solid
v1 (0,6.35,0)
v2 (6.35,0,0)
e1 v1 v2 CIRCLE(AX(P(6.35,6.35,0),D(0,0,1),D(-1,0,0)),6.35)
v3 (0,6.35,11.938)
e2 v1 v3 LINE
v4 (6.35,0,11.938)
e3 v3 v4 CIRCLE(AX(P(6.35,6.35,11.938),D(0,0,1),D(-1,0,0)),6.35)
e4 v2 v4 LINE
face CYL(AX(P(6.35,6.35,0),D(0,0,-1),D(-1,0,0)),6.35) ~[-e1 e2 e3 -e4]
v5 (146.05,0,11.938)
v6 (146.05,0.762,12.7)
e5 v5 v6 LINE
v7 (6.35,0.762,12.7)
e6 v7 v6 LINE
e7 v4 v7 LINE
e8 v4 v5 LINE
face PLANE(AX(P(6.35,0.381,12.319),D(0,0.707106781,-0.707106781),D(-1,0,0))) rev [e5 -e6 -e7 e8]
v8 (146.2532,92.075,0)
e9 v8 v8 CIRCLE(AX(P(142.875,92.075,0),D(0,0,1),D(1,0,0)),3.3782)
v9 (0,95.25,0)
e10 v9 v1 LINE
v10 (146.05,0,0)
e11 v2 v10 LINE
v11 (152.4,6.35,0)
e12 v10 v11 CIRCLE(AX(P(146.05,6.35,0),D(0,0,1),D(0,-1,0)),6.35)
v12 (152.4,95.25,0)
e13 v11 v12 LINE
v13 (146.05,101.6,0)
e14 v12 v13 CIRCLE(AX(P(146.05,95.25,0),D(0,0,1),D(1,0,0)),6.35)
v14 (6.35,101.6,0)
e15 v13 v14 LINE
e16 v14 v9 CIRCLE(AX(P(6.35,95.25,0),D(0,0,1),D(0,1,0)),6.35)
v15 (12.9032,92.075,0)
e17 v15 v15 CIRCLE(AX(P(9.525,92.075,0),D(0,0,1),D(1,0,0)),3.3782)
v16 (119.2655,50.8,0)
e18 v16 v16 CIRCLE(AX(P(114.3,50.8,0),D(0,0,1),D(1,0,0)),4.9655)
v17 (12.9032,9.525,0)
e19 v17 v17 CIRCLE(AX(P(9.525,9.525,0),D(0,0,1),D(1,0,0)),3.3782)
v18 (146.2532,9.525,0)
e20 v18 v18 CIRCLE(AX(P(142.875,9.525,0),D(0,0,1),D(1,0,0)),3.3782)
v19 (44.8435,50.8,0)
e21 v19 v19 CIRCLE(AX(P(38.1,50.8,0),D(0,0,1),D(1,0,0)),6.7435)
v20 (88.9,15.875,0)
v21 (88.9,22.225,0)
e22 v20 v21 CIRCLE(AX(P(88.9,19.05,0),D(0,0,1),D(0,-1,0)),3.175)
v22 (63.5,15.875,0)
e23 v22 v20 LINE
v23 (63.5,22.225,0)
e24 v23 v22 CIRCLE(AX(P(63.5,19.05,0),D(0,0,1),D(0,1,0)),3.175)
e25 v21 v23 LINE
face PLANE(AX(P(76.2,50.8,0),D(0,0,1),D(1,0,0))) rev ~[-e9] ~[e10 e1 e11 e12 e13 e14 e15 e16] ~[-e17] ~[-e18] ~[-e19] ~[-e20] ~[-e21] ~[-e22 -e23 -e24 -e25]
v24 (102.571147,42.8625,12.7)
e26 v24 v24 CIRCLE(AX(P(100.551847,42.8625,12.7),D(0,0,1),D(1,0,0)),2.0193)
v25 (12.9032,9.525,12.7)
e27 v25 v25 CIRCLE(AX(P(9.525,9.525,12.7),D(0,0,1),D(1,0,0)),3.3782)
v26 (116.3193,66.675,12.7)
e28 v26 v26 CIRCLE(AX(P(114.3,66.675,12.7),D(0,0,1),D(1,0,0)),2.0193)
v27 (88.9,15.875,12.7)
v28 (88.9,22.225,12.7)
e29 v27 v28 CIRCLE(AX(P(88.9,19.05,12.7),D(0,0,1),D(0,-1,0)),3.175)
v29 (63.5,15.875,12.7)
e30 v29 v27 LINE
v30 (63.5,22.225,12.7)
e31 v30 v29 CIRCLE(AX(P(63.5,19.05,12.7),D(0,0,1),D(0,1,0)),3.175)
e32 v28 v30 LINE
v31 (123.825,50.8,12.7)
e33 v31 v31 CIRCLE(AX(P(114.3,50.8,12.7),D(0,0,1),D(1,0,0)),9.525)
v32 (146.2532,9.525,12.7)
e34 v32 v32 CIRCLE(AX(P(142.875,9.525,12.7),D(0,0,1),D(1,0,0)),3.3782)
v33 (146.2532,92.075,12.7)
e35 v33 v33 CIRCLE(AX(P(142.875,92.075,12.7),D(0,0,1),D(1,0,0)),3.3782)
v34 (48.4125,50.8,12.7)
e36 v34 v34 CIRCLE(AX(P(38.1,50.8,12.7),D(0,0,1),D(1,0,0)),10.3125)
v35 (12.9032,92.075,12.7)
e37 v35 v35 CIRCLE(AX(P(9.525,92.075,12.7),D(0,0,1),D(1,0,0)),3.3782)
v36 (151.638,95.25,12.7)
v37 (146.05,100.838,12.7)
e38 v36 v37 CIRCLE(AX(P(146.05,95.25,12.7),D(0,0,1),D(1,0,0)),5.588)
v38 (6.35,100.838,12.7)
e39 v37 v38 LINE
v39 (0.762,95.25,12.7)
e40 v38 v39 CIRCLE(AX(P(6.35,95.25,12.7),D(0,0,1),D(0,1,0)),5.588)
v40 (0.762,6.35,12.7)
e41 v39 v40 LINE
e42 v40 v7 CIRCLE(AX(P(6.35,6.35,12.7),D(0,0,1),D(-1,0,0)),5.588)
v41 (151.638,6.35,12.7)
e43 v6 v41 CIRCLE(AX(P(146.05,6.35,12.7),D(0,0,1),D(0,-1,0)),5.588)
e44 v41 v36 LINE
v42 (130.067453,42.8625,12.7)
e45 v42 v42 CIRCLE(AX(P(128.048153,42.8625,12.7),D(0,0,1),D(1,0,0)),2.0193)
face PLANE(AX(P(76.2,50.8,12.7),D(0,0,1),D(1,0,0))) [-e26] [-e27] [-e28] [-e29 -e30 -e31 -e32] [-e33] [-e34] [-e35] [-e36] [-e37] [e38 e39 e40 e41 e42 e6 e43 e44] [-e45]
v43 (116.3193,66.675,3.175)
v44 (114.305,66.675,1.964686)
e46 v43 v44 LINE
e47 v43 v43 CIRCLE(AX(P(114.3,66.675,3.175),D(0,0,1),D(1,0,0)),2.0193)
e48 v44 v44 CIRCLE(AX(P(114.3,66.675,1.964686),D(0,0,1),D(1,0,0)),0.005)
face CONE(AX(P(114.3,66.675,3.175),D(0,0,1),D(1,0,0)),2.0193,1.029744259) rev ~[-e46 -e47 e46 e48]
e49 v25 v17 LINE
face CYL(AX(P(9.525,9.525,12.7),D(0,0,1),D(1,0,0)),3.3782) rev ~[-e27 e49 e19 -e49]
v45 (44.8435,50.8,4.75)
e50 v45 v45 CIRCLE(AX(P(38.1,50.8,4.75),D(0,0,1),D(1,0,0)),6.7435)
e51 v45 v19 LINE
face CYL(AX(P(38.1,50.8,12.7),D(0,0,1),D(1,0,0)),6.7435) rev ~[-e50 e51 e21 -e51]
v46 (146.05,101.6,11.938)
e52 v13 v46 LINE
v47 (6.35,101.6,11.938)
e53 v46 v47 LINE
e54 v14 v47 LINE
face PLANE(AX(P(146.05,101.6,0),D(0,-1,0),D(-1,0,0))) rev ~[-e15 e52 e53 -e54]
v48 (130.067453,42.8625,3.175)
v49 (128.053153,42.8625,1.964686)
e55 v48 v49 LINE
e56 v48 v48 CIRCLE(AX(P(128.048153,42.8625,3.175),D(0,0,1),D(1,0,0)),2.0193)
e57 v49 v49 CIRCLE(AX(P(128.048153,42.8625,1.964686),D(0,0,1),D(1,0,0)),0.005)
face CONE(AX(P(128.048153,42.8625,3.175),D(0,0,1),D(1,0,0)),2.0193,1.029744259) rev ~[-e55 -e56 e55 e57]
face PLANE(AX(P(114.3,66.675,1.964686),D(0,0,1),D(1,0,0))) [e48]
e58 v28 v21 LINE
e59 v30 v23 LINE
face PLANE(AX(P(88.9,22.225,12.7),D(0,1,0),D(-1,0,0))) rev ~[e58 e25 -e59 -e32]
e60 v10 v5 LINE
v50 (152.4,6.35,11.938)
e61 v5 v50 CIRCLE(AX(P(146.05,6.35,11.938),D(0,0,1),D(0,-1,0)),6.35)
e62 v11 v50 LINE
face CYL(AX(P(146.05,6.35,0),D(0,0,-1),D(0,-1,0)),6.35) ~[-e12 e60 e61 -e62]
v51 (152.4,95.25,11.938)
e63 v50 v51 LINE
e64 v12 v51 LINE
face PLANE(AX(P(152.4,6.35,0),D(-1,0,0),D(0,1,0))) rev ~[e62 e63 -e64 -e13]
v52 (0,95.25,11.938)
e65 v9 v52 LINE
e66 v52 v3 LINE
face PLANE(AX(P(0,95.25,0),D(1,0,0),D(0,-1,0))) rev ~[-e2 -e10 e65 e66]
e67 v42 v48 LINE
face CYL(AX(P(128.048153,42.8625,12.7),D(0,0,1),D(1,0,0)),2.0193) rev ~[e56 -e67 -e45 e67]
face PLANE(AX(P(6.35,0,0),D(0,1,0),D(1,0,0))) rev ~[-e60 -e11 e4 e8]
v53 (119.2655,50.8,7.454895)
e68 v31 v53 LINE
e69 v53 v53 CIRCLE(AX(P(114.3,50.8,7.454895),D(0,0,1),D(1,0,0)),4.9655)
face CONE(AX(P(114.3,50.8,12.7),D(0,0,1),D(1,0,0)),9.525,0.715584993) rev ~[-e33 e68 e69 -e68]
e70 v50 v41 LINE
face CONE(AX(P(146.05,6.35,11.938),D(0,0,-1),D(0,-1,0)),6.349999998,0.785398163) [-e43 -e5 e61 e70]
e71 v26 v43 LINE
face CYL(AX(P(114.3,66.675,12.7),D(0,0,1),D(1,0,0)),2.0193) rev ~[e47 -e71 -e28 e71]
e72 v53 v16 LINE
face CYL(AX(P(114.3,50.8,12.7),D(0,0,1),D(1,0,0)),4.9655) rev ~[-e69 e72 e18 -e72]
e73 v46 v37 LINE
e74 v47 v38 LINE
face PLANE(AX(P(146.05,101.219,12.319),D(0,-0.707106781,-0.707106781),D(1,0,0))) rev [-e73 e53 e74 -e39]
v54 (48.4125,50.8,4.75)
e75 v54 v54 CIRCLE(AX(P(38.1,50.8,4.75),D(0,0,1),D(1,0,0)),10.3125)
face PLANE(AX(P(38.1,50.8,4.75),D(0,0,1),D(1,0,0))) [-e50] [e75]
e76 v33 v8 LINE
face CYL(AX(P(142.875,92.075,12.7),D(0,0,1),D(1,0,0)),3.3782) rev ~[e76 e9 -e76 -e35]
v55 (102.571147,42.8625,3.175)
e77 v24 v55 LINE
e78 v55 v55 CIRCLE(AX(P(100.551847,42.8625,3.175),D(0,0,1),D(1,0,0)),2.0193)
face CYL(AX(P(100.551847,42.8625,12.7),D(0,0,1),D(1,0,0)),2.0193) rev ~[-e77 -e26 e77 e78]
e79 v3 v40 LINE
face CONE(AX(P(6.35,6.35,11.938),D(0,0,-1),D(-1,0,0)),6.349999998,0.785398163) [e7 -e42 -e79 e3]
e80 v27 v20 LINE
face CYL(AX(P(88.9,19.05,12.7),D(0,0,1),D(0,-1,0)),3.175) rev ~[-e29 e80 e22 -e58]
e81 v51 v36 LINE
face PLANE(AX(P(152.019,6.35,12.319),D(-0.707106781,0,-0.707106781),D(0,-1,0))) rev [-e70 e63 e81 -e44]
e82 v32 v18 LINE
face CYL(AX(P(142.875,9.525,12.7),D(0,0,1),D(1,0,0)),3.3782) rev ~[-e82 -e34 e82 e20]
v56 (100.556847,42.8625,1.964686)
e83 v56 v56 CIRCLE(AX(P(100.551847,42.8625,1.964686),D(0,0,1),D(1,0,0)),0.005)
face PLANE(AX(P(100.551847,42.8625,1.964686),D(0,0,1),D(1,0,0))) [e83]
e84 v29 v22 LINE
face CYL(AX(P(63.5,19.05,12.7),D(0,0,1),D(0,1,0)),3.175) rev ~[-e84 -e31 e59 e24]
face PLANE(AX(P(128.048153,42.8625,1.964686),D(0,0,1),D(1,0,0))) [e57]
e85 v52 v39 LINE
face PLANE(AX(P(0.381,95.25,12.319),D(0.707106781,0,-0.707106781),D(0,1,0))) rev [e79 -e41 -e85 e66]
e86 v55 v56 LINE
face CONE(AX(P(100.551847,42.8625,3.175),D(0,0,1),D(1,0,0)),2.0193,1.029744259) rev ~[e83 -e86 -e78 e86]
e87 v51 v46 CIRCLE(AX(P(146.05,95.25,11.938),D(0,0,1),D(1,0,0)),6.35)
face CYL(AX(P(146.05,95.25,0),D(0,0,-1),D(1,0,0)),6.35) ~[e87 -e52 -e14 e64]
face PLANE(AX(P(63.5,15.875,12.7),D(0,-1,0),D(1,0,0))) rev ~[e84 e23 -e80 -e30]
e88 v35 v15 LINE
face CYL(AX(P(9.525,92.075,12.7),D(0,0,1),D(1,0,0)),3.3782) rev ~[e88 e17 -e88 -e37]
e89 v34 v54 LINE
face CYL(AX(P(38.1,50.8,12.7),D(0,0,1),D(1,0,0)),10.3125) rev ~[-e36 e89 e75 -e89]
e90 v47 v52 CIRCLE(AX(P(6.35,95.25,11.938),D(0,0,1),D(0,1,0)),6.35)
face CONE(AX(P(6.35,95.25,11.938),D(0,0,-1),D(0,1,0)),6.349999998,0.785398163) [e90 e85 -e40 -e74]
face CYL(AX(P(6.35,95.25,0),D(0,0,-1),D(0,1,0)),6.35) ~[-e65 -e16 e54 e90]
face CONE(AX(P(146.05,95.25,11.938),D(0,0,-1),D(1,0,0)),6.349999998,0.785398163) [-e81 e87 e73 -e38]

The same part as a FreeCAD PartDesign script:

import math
import FreeCAD as App
import Part
import Sketcher
from FreeCAD import Vector
Q = App.Units.Quantity


def edges_at(feature, points):
    """Names of the edges that pass closest to the given points."""
    edges = feature.Shape.Edges
    near = lambda p: min(range(len(edges)), key=lambda i: edges[i].distToShape(Part.Vertex(*p))[0])
    return sorted({f"Edge{near(p) + 1}" for p in points})


def faces_at(feature, points):
    """Names of the faces that lie closest to the given points."""
    faces = feature.Shape.Faces
    near = lambda p: min(range(len(faces)), key=lambda i: faces[i].distToShape(Part.Vertex(*p))[0])
    return sorted({f"Face{near(p) + 1}" for p in points})

doc = App.newDocument("Part")
body = doc.addObject("PartDesign::Body", "Body")

sketch1 = body.newObject("Sketcher::SketchObject", "Sketch")
sketch1.AttachmentSupport = (doc.getObject("XY_Plane"), [""])
sketch1.MapMode = "FlatFace"
sketch1.addGeometry(Part.LineSegment(Vector(6, 0, 0), Vector(146, 0, 0)), False)
sketch1.addGeometry(Part.ArcOfCircle(Part.Circle(Vector(146, 6, 0), Vector(0, 0, 1), 6), math.radians(-90), math.radians(0)), False)
sketch1.addGeometry(Part.LineSegment(Vector(152, 6, 0), Vector(152, 95, 0)), False)
sketch1.addGeometry(Part.ArcOfCircle(Part.Circle(Vector(146, 95, 0), Vector(0, 0, 1), 6), math.radians(0), math.radians(90)), False)
sketch1.addGeometry(Part.LineSegment(Vector(146, 102, 0), Vector(6, 102, 0)), False)
sketch1.addGeometry(Part.ArcOfCircle(Part.Circle(Vector(6, 95, 0), Vector(0, 0, 1), 6), math.radians(90), math.radians(180)), False)
sketch1.addGeometry(Part.LineSegment(Vector(0, 95, 0), Vector(0, 6, 0)), False)
sketch1.addGeometry(Part.ArcOfCircle(Part.Circle(Vector(6, 6, 0), Vector(0, 0, 1), 6), math.radians(180), math.radians(270)), False)
sketch1.addConstraint(Sketcher.Constraint("Tangent", 0, 2, 1, 1))
sketch1.addConstraint(Sketcher.Constraint("Tangent", 1, 2, 2, 1))
sketch1.addConstraint(Sketcher.Constraint("Tangent", 2, 2, 3, 1))
sketch1.addConstraint(Sketcher.Constraint("Tangent", 3, 2, 4, 1))
sketch1.addConstraint(Sketcher.Constraint("Tangent", 4, 2, 5, 1))
sketch1.addConstraint(Sketcher.Constraint("Tangent", 5, 2, 6, 1))
sketch1.addConstraint(Sketcher.Constraint("Tangent", 6, 2, 7, 1))
sketch1.addConstraint(Sketcher.Constraint("Tangent", 7, 2, 0, 1))
sketch1.addConstraint(Sketcher.Constraint("Horizontal", 0))
sketch1.addConstraint(Sketcher.Constraint("Vertical", 2))
sketch1.addConstraint(Sketcher.Constraint("Horizontal", 4))
sketch1.addConstraint(Sketcher.Constraint("Vertical", 6))
sketch1.addConstraint(Sketcher.Constraint("Equal", 1, 3))
sketch1.addConstraint(Sketcher.Constraint("Equal", 3, 5))
sketch1.addConstraint(Sketcher.Constraint("Equal", 5, 7))
sketch1.addConstraint(Sketcher.Constraint("PointOnObject", 0, 2, -1))
sketch1.addConstraint(Sketcher.Constraint("PointOnObject", 5, 2, -2))
sketch1.addConstraint(Sketcher.Constraint("Radius", 1, Q("0.25 in")))
sketch1.addConstraint(Sketcher.Constraint("DistanceX", 0, 1, 0, 2, Q("5.5 in")))
sketch1.addConstraint(Sketcher.Constraint("DistanceY", 2, 1, 2, 2, Q("3.5 in")))
pad1 = body.newObject("PartDesign::Pad", "Pad")
pad1.Profile = sketch1
pad1.Length = Q("0.5 in")

sketch2 = body.newObject("Sketcher::SketchObject", "Sketch001")
sketch2.AttachmentSupport = (doc.getObject("XY_Plane"), [""])
sketch2.MapMode = "FlatFace"
sketch2.AttachmentOffset = App.Placement(Vector(0, 0, 0.5 * 25.4), App.Rotation())
sketch2.addGeometry(Part.Circle(Vector(9.5, 9.5, 0), Vector(0, 0, 1), 3.4), False)
sketch2.addGeometry(Part.Circle(Vector(142.9, 9.5, 0), Vector(0, 0, 1), 3.4), False)
sketch2.addGeometry(Part.Circle(Vector(9.5, 92.1, 0), Vector(0, 0, 1), 3.4), False)
sketch2.addGeometry(Part.Circle(Vector(142.9, 92.1, 0), Vector(0, 0, 1), 3.4), False)
sketch2.addConstraint(Sketcher.Constraint("Equal", 0, 1))
sketch2.addConstraint(Sketcher.Constraint("Equal", 1, 2))
sketch2.addConstraint(Sketcher.Constraint("Equal", 2, 3))
sketch2.addConstraint(Sketcher.Constraint("Horizontal", 0, 3, 1, 3))
sketch2.addConstraint(Sketcher.Constraint("Horizontal", 2, 3, 3, 3))
sketch2.addConstraint(Sketcher.Constraint("Vertical", 0, 3, 2, 3))
sketch2.addConstraint(Sketcher.Constraint("Vertical", 1, 3, 3, 3))
sketch2.addConstraint(Sketcher.Constraint("Diameter", 0, Q("0.266 in")))
sketch2.addConstraint(Sketcher.Constraint("DistanceX", 0, 3, 1, 3, Q("5.25 in")))
sketch2.addConstraint(Sketcher.Constraint("DistanceY", 0, 3, 2, 3, Q("3.25 in")))
sketch2.addConstraint(Sketcher.Constraint("DistanceX", -1, 1, 0, 3, Q("0.375 in")))
sketch2.addConstraint(Sketcher.Constraint("DistanceY", -1, 1, 0, 3, Q("0.375 in")))
pocket1 = body.newObject("PartDesign::Pocket", "Pocket")
pocket1.Profile = sketch2
pocket1.Type = "ThroughAll"

sketch3 = body.newObject("Sketcher::SketchObject", "Sketch002")
sketch3.AttachmentSupport = (doc.getObject("XY_Plane"), [""])
sketch3.MapMode = "FlatFace"
sketch3.AttachmentOffset = App.Placement(Vector(0, 0, 0.5 * 25.4), App.Rotation())
sketch3.addGeometry(Part.Circle(Vector(38, 51, 0), Vector(0, 0, 1), 10), False)
sketch3.addConstraint(Sketcher.Constraint("DistanceY", -1, 1, 0, 3, Q("2 in")))
sketch3.addConstraint(Sketcher.Constraint("DistanceX", -1, 1, 0, 3, Q("1.5 in")))
sketch3.addConstraint(Sketcher.Constraint("Diameter", 0, Q("20.625 mm")))
pocket2 = body.newObject("PartDesign::Pocket", "Pocket001")
pocket2.Profile = sketch3
pocket2.Length = 7.95

sketch4 = body.newObject("Sketcher::SketchObject", "Sketch003")
sketch4.AttachmentSupport = (doc.getObject("XY_Plane"), [""])
sketch4.MapMode = "FlatFace"
sketch4.AttachmentOffset = App.Placement(Vector(0, 0, 0.5 * 25.4), App.Rotation())
sketch4.addGeometry(Part.Circle(Vector(38, 51, 0), Vector(0, 0, 1), 7), False)
sketch4.addConstraint(Sketcher.Constraint("DistanceY", -1, 1, 0, 3, Q("2 in")))
sketch4.addConstraint(Sketcher.Constraint("DistanceX", -1, 1, 0, 3, Q("1.5 in")))
sketch4.addConstraint(Sketcher.Constraint("Diameter", 0, Q("13.487 mm")))
pocket3 = body.newObject("PartDesign::Pocket", "Pocket002")
pocket3.Profile = sketch4
pocket3.Type = "ThroughAll"
body2 = doc.addObject("PartDesign::Body", "Body001")

sketch5 = body2.newObject("Sketcher::SketchObject", "Sketch004")
sketch5.AttachmentSupport = (doc.getObject("XY_Plane001"), [""])
sketch5.MapMode = "FlatFace"
sketch5.AttachmentOffset = App.Placement(Vector(0, 0, 0.5 * 25.4), App.Rotation())
sketch5.addGeometry(Part.Circle(Vector(114, 51, 0), Vector(0, 0, 1), 10), False)
sketch5.addConstraint(Sketcher.Constraint("Diameter", 0, Q("0.75 in")))
sketch5.addConstraint(Sketcher.Constraint("DistanceY", -1, 1, 0, 3, Q("2 in")))
sketch5.addConstraint(Sketcher.Constraint("DistanceX", -1, 1, 0, 3, Q("4.5 in")))
pad2 = body2.newObject("PartDesign::Pad", "Pad001")
pad2.Profile = sketch5
pad2.Length = Q("0.2065002 in")
pad2.Reversed = True
doc.recompute()

datumplane = body2.newObject("PartDesign::Plane", "DatumPlane")
datumplane.AttachmentSupport = (doc.getObject("XY_Plane001"), [""])
datumplane.MapMode = "FlatFace"
datumplane.AttachmentOffset = App.Placement(Vector(0, 0, 0.5 * 25.4), App.Rotation())
draft = body2.newObject("PartDesign::Draft", "Draft")
draft.Base = (pad2, faces_at(pad2, [(104.775, 50.8, 10.077)]))
draft.NeutralPlane = (datumplane, [""])
draft.Angle = 41
draft.Reversed = True
doc.recompute()

boolean = body.newObject("PartDesign::Boolean", "Boolean")
boolean.Type = "Cut"
boolean.addObjects([body2])

sketch6 = body.newObject("Sketcher::SketchObject", "Sketch005")
sketch6.AttachmentSupport = (doc.getObject("XY_Plane"), [""])
sketch6.MapMode = "FlatFace"
sketch6.AttachmentOffset = App.Placement(Vector(0, 0, 0.5 * 25.4), App.Rotation())
sketch6.addGeometry(Part.Circle(Vector(114.3, 50.8, 0), Vector(0, 0, 1), 5), False)
sketch6.addConstraint(Sketcher.Constraint("DistanceY", -1, 1, 0, 3, Q("2 in")))
sketch6.addConstraint(Sketcher.Constraint("DistanceX", -1, 1, 0, 3, Q("4.5 in")))
sketch6.addConstraint(Sketcher.Constraint("Diameter", 0, Q("9.931 mm")))
pocket4 = body.newObject("PartDesign::Pocket", "Pocket003")
pocket4.Profile = sketch6
pocket4.Type = "ThroughAll"

sketch7 = body.newObject("Sketcher::SketchObject", "Sketch006")
sketch7.AttachmentSupport = (doc.getObject("XY_Plane"), [""])
sketch7.MapMode = "FlatFace"
sketch7.AttachmentOffset = App.Placement(Vector(0, 0, 0.5 * 25.4), App.Rotation())
sketch7.addGeometry(Part.Circle(Vector(114.3, 66.7, 0), Vector(0, 0, 1), 2), False)
sketch7.addGeometry(Part.Circle(Vector(100.6, 42.9, 0), Vector(0, 0, 1), 2), False)
sketch7.addGeometry(Part.Circle(Vector(128, 42.9, 0), Vector(0, 0, 1), 2), False)
sketch7.addConstraint(Sketcher.Constraint("Equal", 0, 1))
sketch7.addConstraint(Sketcher.Constraint("Equal", 1, 2))
sketch7.addConstraint(Sketcher.Constraint("Horizontal", 1, 3, 2, 3))
sketch7.addConstraint(Sketcher.Constraint("Diameter", 0, Q("0.159 in")))
sketch7.addConstraint(Sketcher.Constraint("DistanceX", -1, 1, 0, 3, Q("4.5 in")))
sketch7.addConstraint(Sketcher.Constraint("DistanceY", -1, 1, 0, 3, Q("2.625 in")))
sketch7.addConstraint(Sketcher.Constraint("DistanceY", -1, 1, 1, 3, Q("1.6875 in")))
sketch7.addConstraint(Sketcher.Constraint("DistanceX", -1, 1, 1, 3, Q("100.551847 mm")))
sketch7.addConstraint(Sketcher.Constraint("DistanceX", -1, 1, 2, 3, Q("128.048153 mm")))
pocket5 = body.newObject("PartDesign::Pocket", "Pocket004")
pocket5.Profile = sketch7
pocket5.Length = Q("0.375 in")
body3 = doc.addObject("PartDesign::Body", "Body002")

sketch8 = body3.newObject("Sketcher::SketchObject", "Sketch007")
sketch8.AttachmentSupport = (doc.getObject("XY_Plane002"), [""])
sketch8.MapMode = "FlatFace"
sketch8.AttachmentOffset = App.Placement(Vector(0, 0, 0.125 * 25.4), App.Rotation())
sketch8.addGeometry(Part.Circle(Vector(114.3, 66.7, 0), Vector(0, 0, 1), 2), False)
sketch8.addConstraint(Sketcher.Constraint("Diameter", 0, Q("0.159 in")))
sketch8.addConstraint(Sketcher.Constraint("DistanceX", -1, 1, 0, 3, Q("4.5 in")))
sketch8.addConstraint(Sketcher.Constraint("DistanceY", -1, 1, 0, 3, Q("2.625 in")))
pad3 = body3.newObject("PartDesign::Pad", "Pad002")
pad3.Profile = sketch8
pad3.Length = 1.210314
pad3.Reversed = True
doc.recompute()

datumplane2 = body3.newObject("PartDesign::Plane", "DatumPlane001")
datumplane2.AttachmentSupport = (doc.getObject("XY_Plane002"), [""])
datumplane2.MapMode = "FlatFace"
datumplane2.AttachmentOffset = App.Placement(Vector(0, 0, 0.125 * 25.4), App.Rotation())
draft2 = body3.newObject("PartDesign::Draft", "Draft001")
draft2.Base = (pad3, faces_at(pad3, [(112.281, 66.675, 2.57)]))
draft2.NeutralPlane = (datumplane2, [""])
draft2.Angle = 59
draft2.Reversed = True
doc.recompute()

boolean2 = body.newObject("PartDesign::Boolean", "Boolean001")
boolean2.Type = "Cut"
boolean2.addObjects([body3])
body4 = doc.addObject("PartDesign::Body", "Body003")

sketch9 = body4.newObject("Sketcher::SketchObject", "Sketch008")
sketch9.AttachmentSupport = (doc.getObject("XY_Plane003"), [""])
sketch9.MapMode = "FlatFace"
sketch9.AttachmentOffset = App.Placement(Vector(0, 0, 0.125 * 25.4), App.Rotation())
sketch9.addGeometry(Part.Circle(Vector(100.6, 42.9, 0), Vector(0, 0, 1), 2), False)
sketch9.addConstraint(Sketcher.Constraint("Diameter", 0, Q("0.159 in")))
sketch9.addConstraint(Sketcher.Constraint("DistanceY", -1, 1, 0, 3, Q("1.6875 in")))
sketch9.addConstraint(Sketcher.Constraint("DistanceX", -1, 1, 0, 3, Q("100.551847 mm")))
pad4 = body4.newObject("PartDesign::Pad", "Pad003")
pad4.Profile = sketch9
pad4.Length = 1.210314
pad4.Reversed = True
doc.recompute()

datumplane3 = body4.newObject("PartDesign::Plane", "DatumPlane002")
datumplane3.AttachmentSupport = (doc.getObject("XY_Plane003"), [""])
datumplane3.MapMode = "FlatFace"
datumplane3.AttachmentOffset = App.Placement(Vector(0, 0, 0.125 * 25.4), App.Rotation())
draft3 = body4.newObject("PartDesign::Draft", "Draft002")
draft3.Base = (pad4, faces_at(pad4, [(98.533, 42.862, 2.57)]))
draft3.NeutralPlane = (datumplane3, [""])
draft3.Angle = 59
draft3.Reversed = True
doc.recompute()

boolean3 = body.newObject("PartDesign::Boolean", "Boolean002")
boolean3.Type = "Cut"
boolean3.addObjects([body4])
body5 = doc.addObject("PartDesign::Body", "Body004")

sketch10 = body5.newObject("Sketcher::SketchObject", "Sketch009")
sketch10.AttachmentSupport = (doc.getObject("XY_Plane004"), [""])
sketch10.MapMode = "FlatFace"
sketch10.AttachmentOffset = App.Placement(Vector(0, 0, 0.125 * 25.4), App.Rotation())
sketch10.addGeometry(Part.Circle(Vector(128, 42.9, 0), Vector(0, 0, 1), 2), False)
sketch10.addConstraint(Sketcher.Constraint("Diameter", 0, Q("0.159 in")))
sketch10.addConstraint(Sketcher.Constraint("DistanceY", -1, 1, 0, 3, Q("1.6875 in")))
sketch10.addConstraint(Sketcher.Constraint("DistanceX", -1, 1, 0, 3, Q("128.048153 mm")))
pad5 = body5.newObject("PartDesign::Pad", "Pad004")
pad5.Profile = sketch10
pad5.Length = 1.210314
pad5.Reversed = True
doc.recompute()

datumplane4 = body5.newObject("PartDesign::Plane", "DatumPlane003")
datumplane4.AttachmentSupport = (doc.getObject("XY_Plane004"), [""])
datumplane4.MapMode = "FlatFace"
datumplane4.AttachmentOffset = App.Placement(Vector(0, 0, 0.125 * 25.4), App.Rotation())
draft4 = body5.newObject("PartDesign::Draft", "Draft003")
draft4.Base = (pad5, faces_at(pad5, [(126.029, 42.862, 2.57)]))
draft4.NeutralPlane = (datumplane4, [""])
draft4.Angle = 59
draft4.Reversed = True
doc.recompute()

boolean4 = body.newObject("PartDesign::Boolean", "Boolean003")
boolean4.Type = "Cut"
boolean4.addObjects([body5])

sketch11 = body.newObject("Sketcher::SketchObject", "Sketch010")
sketch11.AttachmentSupport = (doc.getObject("XY_Plane"), [""])
sketch11.MapMode = "FlatFace"
sketch11.AttachmentOffset = App.Placement(Vector(0, 0, 0.5 * 25.4), App.Rotation())
sketch11.addGeometry(Part.LineSegment(Vector(63.5, 15.9, 0), Vector(88.9, 15.9, 0)), False)
sketch11.addGeometry(Part.ArcOfCircle(Part.Circle(Vector(88.9, 19.1, 0), Vector(0, 0, 1), 3.2), math.radians(-90), math.radians(90)), False)
sketch11.addGeometry(Part.LineSegment(Vector(88.9, 22.2, 0), Vector(63.5, 22.2, 0)), False)
sketch11.addGeometry(Part.ArcOfCircle(Part.Circle(Vector(63.5, 19.1, 0), Vector(0, 0, 1), 3.2), math.radians(90), math.radians(270)), False)
sketch11.addConstraint(Sketcher.Constraint("Tangent", 0, 2, 1, 1))
sketch11.addConstraint(Sketcher.Constraint("Tangent", 1, 2, 2, 1))
sketch11.addConstraint(Sketcher.Constraint("Tangent", 2, 2, 3, 1))
sketch11.addConstraint(Sketcher.Constraint("Tangent", 3, 2, 0, 1))
sketch11.addConstraint(Sketcher.Constraint("Horizontal", 0))
sketch11.addConstraint(Sketcher.Constraint("Horizontal", 2))
sketch11.addConstraint(Sketcher.Constraint("DistanceX", 0, 1, 0, 2, Q("1 in")))
sketch11.addConstraint(Sketcher.Constraint("Radius", 1, Q("0.125 in")))
sketch11.addConstraint(Sketcher.Constraint("DistanceX", -1, 1, 1, 3, Q("3.5 in")))
sketch11.addConstraint(Sketcher.Constraint("DistanceY", -1, 1, 1, 3, Q("0.75 in")))
pocket6 = body.newObject("PartDesign::Pocket", "Pocket005")
pocket6.Profile = sketch11
pocket6.Type = "ThroughAll"
doc.recompute()

chamfer = body.newObject("PartDesign::Chamfer", "Chamfer")
chamfer.Base = (pocket6, edges_at(pocket6, [
    (150.54, 1.86, 12.7),
    (152.4, 50.8, 12.7),
    (150.54, 99.74, 12.7),
    (76.2, 101.6, 12.7),
    (1.86, 99.74, 12.7),
    (0, 50.8, 12.7),
    (1.86, 1.86, 12.7),
    (76.2, 0, 12.7),
]))
chamfer.Size = Q("0.03 in")

doc.recompute()
